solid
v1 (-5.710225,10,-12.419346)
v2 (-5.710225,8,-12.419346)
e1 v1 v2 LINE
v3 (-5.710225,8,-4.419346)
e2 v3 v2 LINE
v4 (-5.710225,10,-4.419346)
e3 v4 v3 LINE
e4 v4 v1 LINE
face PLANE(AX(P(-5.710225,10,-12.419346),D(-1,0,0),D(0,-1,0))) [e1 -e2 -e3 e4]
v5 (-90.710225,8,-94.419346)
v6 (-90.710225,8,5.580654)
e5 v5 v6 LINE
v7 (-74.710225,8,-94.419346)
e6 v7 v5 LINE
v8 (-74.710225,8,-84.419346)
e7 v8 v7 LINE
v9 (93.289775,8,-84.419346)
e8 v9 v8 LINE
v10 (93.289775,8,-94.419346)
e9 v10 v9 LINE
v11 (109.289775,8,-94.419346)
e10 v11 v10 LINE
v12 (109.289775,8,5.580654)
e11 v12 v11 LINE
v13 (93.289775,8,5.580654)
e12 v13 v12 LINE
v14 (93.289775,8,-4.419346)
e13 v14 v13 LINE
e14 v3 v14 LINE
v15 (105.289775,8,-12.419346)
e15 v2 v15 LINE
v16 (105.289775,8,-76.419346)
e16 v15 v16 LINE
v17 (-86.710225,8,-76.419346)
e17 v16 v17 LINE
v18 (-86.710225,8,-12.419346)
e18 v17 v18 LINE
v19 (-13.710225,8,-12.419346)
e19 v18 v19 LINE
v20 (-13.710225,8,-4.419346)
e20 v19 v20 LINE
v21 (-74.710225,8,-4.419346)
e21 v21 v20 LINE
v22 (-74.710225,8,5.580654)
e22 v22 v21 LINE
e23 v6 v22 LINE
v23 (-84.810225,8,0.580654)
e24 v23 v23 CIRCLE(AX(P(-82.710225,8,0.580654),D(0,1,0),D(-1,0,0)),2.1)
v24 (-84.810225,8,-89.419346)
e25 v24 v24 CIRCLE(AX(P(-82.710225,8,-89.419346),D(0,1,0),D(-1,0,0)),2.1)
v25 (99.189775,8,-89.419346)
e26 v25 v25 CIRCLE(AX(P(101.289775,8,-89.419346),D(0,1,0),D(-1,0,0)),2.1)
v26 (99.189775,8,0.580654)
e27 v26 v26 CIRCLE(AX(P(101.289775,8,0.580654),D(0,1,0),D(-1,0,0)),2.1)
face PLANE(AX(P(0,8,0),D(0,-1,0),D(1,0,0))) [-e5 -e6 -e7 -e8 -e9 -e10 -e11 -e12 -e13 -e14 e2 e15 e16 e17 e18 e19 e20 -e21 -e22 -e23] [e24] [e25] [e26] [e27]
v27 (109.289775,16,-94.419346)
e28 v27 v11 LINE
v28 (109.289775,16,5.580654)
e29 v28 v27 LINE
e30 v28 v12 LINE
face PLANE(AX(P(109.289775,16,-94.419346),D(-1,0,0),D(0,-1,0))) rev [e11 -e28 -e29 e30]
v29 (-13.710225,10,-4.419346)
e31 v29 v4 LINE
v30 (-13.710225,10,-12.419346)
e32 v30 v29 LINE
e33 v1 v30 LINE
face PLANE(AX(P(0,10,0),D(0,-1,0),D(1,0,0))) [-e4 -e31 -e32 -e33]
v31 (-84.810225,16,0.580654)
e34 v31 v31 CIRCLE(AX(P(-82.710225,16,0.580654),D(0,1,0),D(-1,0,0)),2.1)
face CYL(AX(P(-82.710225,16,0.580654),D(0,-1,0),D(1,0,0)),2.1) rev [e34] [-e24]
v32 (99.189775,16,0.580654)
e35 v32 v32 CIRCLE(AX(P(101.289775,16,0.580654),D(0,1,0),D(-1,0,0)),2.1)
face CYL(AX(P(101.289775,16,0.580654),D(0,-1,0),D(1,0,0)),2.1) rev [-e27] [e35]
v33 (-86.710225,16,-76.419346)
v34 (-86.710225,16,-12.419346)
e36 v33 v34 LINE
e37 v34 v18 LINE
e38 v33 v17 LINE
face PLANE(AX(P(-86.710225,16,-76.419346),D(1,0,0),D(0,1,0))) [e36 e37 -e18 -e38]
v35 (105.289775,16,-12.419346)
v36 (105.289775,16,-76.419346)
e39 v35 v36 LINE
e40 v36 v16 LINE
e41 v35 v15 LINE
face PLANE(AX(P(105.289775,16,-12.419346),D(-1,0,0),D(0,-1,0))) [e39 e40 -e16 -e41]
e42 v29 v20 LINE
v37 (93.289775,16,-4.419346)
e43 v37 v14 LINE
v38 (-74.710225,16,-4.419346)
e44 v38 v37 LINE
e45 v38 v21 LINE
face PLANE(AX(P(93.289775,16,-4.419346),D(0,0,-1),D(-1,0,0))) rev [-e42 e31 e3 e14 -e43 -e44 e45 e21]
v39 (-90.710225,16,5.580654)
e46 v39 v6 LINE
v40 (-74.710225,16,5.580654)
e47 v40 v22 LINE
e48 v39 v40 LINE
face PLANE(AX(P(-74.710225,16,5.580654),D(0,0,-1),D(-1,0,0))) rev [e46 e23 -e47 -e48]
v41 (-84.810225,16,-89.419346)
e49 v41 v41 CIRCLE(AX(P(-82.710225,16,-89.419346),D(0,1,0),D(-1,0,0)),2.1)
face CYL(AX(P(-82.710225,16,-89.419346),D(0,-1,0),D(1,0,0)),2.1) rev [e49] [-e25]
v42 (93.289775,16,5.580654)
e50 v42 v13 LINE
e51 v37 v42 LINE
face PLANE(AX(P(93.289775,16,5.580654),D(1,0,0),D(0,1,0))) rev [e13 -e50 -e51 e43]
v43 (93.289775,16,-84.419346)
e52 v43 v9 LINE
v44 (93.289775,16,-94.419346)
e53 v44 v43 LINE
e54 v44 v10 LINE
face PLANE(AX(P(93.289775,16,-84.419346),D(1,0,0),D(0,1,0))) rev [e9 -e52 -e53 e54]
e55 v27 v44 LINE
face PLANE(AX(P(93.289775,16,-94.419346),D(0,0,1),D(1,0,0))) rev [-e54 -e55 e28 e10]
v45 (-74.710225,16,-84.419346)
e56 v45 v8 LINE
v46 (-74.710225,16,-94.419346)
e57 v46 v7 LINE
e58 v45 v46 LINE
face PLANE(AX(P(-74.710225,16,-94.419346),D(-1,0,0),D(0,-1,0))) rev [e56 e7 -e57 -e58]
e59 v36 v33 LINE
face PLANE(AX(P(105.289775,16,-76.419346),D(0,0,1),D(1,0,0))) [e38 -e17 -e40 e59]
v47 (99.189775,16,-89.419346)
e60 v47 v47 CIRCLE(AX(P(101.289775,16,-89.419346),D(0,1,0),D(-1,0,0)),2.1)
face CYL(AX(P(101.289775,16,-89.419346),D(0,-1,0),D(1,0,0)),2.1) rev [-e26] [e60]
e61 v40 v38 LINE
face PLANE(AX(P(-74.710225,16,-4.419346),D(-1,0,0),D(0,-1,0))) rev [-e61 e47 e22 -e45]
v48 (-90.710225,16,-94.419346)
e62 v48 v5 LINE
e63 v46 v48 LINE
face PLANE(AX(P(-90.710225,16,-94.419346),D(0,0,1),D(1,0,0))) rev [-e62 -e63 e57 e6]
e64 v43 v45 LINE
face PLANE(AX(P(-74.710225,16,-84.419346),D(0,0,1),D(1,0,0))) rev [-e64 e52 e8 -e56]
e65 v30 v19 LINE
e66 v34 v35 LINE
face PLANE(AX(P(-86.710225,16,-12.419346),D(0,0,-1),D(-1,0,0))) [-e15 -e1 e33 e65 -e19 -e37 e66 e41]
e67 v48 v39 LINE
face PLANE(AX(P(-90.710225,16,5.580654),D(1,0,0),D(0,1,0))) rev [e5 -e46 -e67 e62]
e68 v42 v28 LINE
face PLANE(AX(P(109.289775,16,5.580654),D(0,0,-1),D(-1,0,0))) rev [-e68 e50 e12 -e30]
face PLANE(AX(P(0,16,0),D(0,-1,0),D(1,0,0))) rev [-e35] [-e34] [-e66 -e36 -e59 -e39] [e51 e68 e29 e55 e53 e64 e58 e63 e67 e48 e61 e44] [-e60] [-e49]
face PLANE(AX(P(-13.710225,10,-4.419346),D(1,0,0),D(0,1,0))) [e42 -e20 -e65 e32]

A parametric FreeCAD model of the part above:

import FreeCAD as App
import Part
import Sketcher
Q = App.Units.Quantity

doc = App.newDocument("Part")
body = doc.addObject("PartDesign::Body", "Body")

sketch1 = body.newObject("Sketcher::SketchObject", "Sketch")
sketch1.AttachmentSupport = (doc.getObject("XZ_Plane"), [""])
sketch1.MapMode = "FlatFace"
sketch1.AttachmentOffset = App.Placement(App.Vector(0, 0, -8), App.Rotation())
sketch1.addGeometry([
    Part.LineSegment(App.Vector(109.289775, 5.580654, 0), App.Vector(109.289775, -94.419346, 0)),
    Part.LineSegment(App.Vector(109.289775, -94.419346, 0), App.Vector(93.289775, -94.419346, 0)),
    Part.LineSegment(App.Vector(93.289775, -94.419346, 0), App.Vector(93.289775, -84.419346, 0)),
    Part.LineSegment(App.Vector(93.289775, -84.419346, 0), App.Vector(-74.710225, -84.419346, 0)),
    Part.LineSegment(App.Vector(-74.710225, -84.419346, 0), App.Vector(-74.710225, -94.419346, 0)),
    Part.LineSegment(App.Vector(-74.710225, -94.419346, 0), App.Vector(-90.710225, -94.419346, 0)),
    Part.LineSegment(App.Vector(-90.710225, -94.419346, 0), App.Vector(-90.710225, 5.580654, 0)),
    Part.LineSegment(App.Vector(-90.710225, 5.580654, 0), App.Vector(-74.710225, 5.580654, 0)),
    Part.LineSegment(App.Vector(-74.710225, 5.580654, 0), App.Vector(-74.710225, -4.419346, 0)),
    Part.LineSegment(App.Vector(-74.710225, -4.419346, 0), App.Vector(93.289775, -4.419346, 0)),
    Part.LineSegment(App.Vector(93.289775, -4.419346, 0), App.Vector(93.289775, 5.580654, 0)),
    Part.LineSegment(App.Vector(93.289775, 5.580654, 0), App.Vector(109.289775, 5.580654, 0)),
    Part.Circle(App.Vector(101.289775, 0.580654, 0), App.Vector(0, 0, 1), 2.1),
    Part.Circle(App.Vector(-82.710225, 0.580654, 0), App.Vector(0, 0, 1), 2.1),
    Part.Circle(App.Vector(101.289775, -89.419346, 0), App.Vector(0, 0, 1), 2.1),
    Part.LineSegment(App.Vector(-86.710225, -12.419346, 0), App.Vector(-86.710225, -76.419346, 0)),
    Part.LineSegment(App.Vector(-86.710225, -76.419346, 0), App.Vector(105.289775, -76.419346, 0)),
    Part.LineSegment(App.Vector(105.289775, -76.419346, 0), App.Vector(105.289775, -12.419346, 0)),
    Part.LineSegment(App.Vector(105.289775, -12.419346, 0), App.Vector(-86.710225, -12.419346, 0)),
    Part.Circle(App.Vector(-82.710225, -89.419346, 0), App.Vector(0, 0, 1), 2.1),
], False)
sketch1.addConstraint([
    Sketcher.Constraint("Coincident", 0, 2, 1, 1),
    Sketcher.Constraint("Coincident", 1, 2, 2, 1),
    Sketcher.Constraint("Coincident", 2, 2, 3, 1),
    Sketcher.Constraint("Coincident", 3, 2, 4, 1),
    Sketcher.Constraint("Coincident", 4, 2, 5, 1),
    Sketcher.Constraint("Coincident", 5, 2, 6, 1),
    Sketcher.Constraint("Coincident", 6, 2, 7, 1),
    Sketcher.Constraint("Coincident", 7, 2, 8, 1),
    Sketcher.Constraint("Coincident", 8, 2, 9, 1),
    Sketcher.Constraint("Coincident", 9, 2, 10, 1),
    Sketcher.Constraint("Coincident", 10, 2, 11, 1),
    Sketcher.Constraint("Coincident", 11, 2, 0, 1),
    Sketcher.Constraint("Coincident", 15, 2, 16, 1),
    Sketcher.Constraint("Coincident", 16, 2, 17, 1),
    Sketcher.Constraint("Coincident", 17, 2, 18, 1),
    Sketcher.Constraint("Coincident", 18, 2, 15, 1),
    Sketcher.Constraint("Vertical", 0),
    Sketcher.Constraint("Horizontal", 1),
    Sketcher.Constraint("Vertical", 2),
    Sketcher.Constraint("Horizontal", 3),
    Sketcher.Constraint("Vertical", 4),
    Sketcher.Constraint("Horizontal", 5),
    Sketcher.Constraint("Vertical", 6),
    Sketcher.Constraint("Horizontal", 7),
    Sketcher.Constraint("Vertical", 8),
    Sketcher.Constraint("Horizontal", 9),
    Sketcher.Constraint("Vertical", 10),
    Sketcher.Constraint("Horizontal", 11),
    Sketcher.Constraint("Vertical", 15),
    Sketcher.Constraint("Horizontal", 16),
    Sketcher.Constraint("Vertical", 17),
    Sketcher.Constraint("Horizontal", 18),
    Sketcher.Constraint("Equal", 12, 13),
    Sketcher.Constraint("Equal", 13, 14),
    Sketcher.Constraint("Equal", 14, 19),
    Sketcher.Constraint("Horizontal", 12, 3, 13, 3),
    Sketcher.Constraint("Horizontal", 14, 3, 19, 3),
    Sketcher.Constraint("Horizontal", 1, 2, 4, 2),
    Sketcher.Constraint("Horizontal", 7, 2, 10, 2),
    Sketcher.Constraint("Vertical", 12, 3, 14, 3),
    Sketcher.Constraint("Vertical", 13, 3, 19, 3),
    Sketcher.Constraint("Vertical", 4, 2, 7, 2),
    Sketcher.Constraint("Vertical", 2, 2, 9, 2),
    Sketcher.Constraint("Equal", 1, 5),
    Sketcher.Constraint("Equal", 4, 8),
    Sketcher.Constraint("Diameter", 12, Q("4.2 mm")),
    Sketcher.Constraint("DistanceX", 1, 2, 1, 1, Q("16 mm")),
    Sketcher.Constraint("DistanceX", 3, 2, 3, 1, Q("168 mm")),
    Sketcher.Constraint("DistanceX", 16, 1, 16, 2, Q("192 mm")),
    Sketcher.Constraint("DistanceY", 0, 2, 0, 1, Q("100 mm")),
    Sketcher.Constraint("DistanceY", 2, 1, 2, 2, Q("10 mm")),
    Sketcher.Constraint("DistanceY", 15, 2, 15, 1, Q("64 mm")),
    Sketcher.Constraint("DistanceX", 13, 3, 12, 3, Q("184 mm")),
    Sketcher.Constraint("DistanceY", 14, 3, 12, 3, Q("90 mm")),
    Sketcher.Constraint("DistanceX", 14, 3, 0, 2, Q("8 mm")),
    Sketcher.Constraint("DistanceY", 0, 2, 14, 3, Q("5 mm")),
    Sketcher.Constraint("DistanceX", 15, 2, 19, 3, Q("4 mm")),
    Sketcher.Constraint("DistanceY", 19, 3, 15, 2, Q("13 mm")),
    Sketcher.Constraint("DistanceX", -1, 1, 12, 3, Q("101.289775 mm")),
    Sketcher.Constraint("DistanceY", -1, 1, 12, 3, Q("0.580654 mm")),
])
pad1 = body.newObject("PartDesign::Pad", "Pad")
pad1.Profile = sketch1
pad1.Length = 8
pad1.Reversed = True

sketch2 = body.newObject("Sketcher::SketchObject", "Sketch001")
sketch2.AttachmentSupport = (doc.getObject("XZ_Plane"), [""])
sketch2.MapMode = "FlatFace"
sketch2.AttachmentOffset = App.Placement(App.Vector(0, 0, -8), App.Rotation())
sketch2.addGeometry([
    Part.LineSegment(App.Vector(-13.710225, -12.419346, 0), App.Vector(-13.710225, -4.419346, 0)),
    Part.LineSegment(App.Vector(-13.710225, -4.419346, 0), App.Vector(-5.710225, -4.419346, 0)),
    Part.LineSegment(App.Vector(-5.710225, -4.419346, 0), App.Vector(-5.710225, -12.419346, 0)),
    Part.LineSegment(App.Vector(-5.710225, -12.419346, 0), App.Vector(-13.710225, -12.419346, 0)),
], False)
sketch2.addConstraint([
    Sketcher.Constraint("Coincident", 0, 2, 1, 1),
    Sketcher.Constraint("Coincident", 1, 2, 2, 1),
    Sketcher.Constraint("Coincident", 2, 2, 3, 1),
    Sketcher.Constraint("Coincident", 3, 2, 0, 1),
    Sketcher.Constraint("Vertical", 0),
    Sketcher.Constraint("Horizontal", 1),
    Sketcher.Constraint("Vertical", 2),
    Sketcher.Constraint("Horizontal", 3),
    Sketcher.Constraint("Equal", 3, 0),
    Sketcher.Constraint("DistanceX", 1, 1, 1, 2, Q("8 mm")),
    Sketcher.Constraint("DistanceX", 0, 2, -1, 1, Q("13.710225 mm")),
    Sketcher.Constraint("DistanceY", 0, 2, -1, 1, Q("4.419346 mm")),
])
pocket1 = body.newObject("PartDesign::Pocket", "Pocket")
pocket1.Profile = sketch2
pocket1.Length = 2

doc.recompute()
